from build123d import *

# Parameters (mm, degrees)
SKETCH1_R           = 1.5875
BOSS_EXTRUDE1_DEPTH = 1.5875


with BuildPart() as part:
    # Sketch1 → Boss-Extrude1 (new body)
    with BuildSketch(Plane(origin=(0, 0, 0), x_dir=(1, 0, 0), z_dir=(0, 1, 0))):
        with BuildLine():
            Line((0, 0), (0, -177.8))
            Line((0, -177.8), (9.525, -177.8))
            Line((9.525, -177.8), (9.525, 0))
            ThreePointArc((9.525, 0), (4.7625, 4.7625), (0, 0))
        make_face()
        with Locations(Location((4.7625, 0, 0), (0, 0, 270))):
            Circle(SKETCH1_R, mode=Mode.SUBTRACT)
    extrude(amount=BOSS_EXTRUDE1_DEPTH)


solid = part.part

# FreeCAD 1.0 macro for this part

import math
import FreeCAD as App
import Part
import Sketcher
Q = App.Units.Quantity

doc = App.newDocument("Part")
body = doc.addObject("PartDesign::Body", "Body")

sketch1 = body.newObject("Sketcher::SketchObject", "Sketch")
sketch1.AttachmentSupport = (doc.getObject("XZ_Plane"), [""])
sketch1.MapMode = "FlatFace"
sketch1.addGeometry([
    Part.LineSegment(App.Vector(0, 0, 0), App.Vector(0, 177.8, 0)),
    Part.LineSegment(App.Vector(0, 177.8, 0), App.Vector(9.525, 177.8, 0)),
    Part.LineSegment(App.Vector(9.525, 177.8, 0), App.Vector(9.525, 0, 0)),
    Part.ArcOfCircle(Part.Circle(App.Vector(4.7625, 0, 0), App.Vector(0, 0, 1), 4.7625), math.radians(180), math.radians(360)),
    Part.Circle(App.Vector(4.7625, 0, 0), App.Vector(0, 0, 1), 1.5875),
], False)
sketch1.addConstraint([
    Sketcher.Constraint("Coincident", 0, 2, 1, 1),
    Sketcher.Constraint("Coincident", 1, 2, 2, 1),
    Sketcher.Constraint("Tangent", 2, 2, 3, 2),
    Sketcher.Constraint("Tangent", 3, 1, 0, 1),
    Sketcher.Constraint("Vertical", 0),
    Sketcher.Constraint("Horizontal", 1),
    Sketcher.Constraint("Vertical", 2),
    Sketcher.Constraint("Coincident", 3, 1, -1, 1),
    Sketcher.Constraint("Coincident", 4, 3, 3, 3),
    Sketcher.Constraint("DistanceY", 0, 1, 0, 2, Q("7 in")),
    Sketcher.Constraint("Diameter", 4, Q("0.125 in")),
    Sketcher.Constraint("Radius", 3, Q("0.1875 in")),
])
pad1 = body.newObject("PartDesign::Pad", "Pad")
pad1.Profile = sketch1
pad1.Length = Q("0.0625 in")
pad1.Reversed = True

doc.recompute()
